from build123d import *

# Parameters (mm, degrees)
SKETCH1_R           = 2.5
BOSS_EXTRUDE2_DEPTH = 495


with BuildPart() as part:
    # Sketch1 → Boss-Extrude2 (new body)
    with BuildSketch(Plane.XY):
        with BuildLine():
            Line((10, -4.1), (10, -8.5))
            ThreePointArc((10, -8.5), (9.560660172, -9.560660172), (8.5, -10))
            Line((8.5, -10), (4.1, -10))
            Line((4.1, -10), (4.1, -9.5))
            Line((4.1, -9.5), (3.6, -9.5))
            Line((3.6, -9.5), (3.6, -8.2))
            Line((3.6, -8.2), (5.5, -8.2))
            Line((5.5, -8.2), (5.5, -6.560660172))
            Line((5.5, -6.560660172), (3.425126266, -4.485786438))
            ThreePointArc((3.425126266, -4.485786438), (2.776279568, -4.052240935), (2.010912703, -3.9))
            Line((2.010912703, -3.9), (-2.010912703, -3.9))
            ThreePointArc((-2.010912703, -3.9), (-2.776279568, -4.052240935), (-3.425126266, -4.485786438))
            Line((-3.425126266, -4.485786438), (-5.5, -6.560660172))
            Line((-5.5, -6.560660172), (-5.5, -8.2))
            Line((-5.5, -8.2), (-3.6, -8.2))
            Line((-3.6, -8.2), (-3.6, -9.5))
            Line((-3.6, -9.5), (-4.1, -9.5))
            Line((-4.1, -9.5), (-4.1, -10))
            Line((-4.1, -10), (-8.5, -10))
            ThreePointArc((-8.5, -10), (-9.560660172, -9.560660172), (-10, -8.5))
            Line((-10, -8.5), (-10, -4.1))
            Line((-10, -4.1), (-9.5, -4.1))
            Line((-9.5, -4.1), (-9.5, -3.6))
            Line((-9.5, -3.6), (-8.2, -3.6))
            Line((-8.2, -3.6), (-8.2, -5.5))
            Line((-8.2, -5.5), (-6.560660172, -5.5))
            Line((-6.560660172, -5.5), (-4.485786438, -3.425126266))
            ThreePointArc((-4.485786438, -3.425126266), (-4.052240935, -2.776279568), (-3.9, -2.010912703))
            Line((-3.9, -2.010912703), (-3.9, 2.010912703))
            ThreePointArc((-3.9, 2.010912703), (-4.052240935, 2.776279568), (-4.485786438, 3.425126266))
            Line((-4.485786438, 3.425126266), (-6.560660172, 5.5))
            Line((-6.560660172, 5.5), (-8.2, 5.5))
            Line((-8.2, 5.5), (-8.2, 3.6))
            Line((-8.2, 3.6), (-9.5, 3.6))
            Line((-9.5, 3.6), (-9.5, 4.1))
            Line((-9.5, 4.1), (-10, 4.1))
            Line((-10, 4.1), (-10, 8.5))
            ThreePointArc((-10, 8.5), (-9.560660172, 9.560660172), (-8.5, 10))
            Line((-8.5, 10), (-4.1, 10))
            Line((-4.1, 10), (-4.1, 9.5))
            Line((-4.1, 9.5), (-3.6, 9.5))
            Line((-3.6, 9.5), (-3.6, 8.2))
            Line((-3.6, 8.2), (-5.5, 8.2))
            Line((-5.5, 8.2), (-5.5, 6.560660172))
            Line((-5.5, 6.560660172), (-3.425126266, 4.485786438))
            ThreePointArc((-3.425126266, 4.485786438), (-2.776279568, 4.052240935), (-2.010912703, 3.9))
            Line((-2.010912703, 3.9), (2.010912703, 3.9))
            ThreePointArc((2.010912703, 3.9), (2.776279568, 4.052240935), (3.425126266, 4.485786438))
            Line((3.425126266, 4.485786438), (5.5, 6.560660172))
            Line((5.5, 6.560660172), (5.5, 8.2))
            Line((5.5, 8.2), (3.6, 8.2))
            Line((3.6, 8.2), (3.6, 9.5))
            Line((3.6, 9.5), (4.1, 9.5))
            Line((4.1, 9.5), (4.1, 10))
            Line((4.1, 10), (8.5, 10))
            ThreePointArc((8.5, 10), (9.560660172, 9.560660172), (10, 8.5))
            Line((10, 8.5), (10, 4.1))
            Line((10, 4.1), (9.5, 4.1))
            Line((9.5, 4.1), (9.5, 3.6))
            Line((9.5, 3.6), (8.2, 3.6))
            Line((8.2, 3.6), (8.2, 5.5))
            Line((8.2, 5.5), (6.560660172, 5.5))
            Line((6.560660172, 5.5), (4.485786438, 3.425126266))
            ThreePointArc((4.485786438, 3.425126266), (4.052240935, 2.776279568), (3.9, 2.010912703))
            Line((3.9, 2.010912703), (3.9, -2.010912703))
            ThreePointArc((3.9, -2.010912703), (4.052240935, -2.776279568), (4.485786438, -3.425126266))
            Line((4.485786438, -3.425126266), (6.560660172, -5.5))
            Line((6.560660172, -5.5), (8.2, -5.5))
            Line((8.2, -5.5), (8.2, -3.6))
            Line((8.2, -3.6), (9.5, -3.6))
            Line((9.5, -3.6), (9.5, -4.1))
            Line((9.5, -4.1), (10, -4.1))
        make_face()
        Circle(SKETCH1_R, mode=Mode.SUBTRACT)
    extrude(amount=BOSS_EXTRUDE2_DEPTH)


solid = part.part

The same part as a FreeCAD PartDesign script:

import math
import FreeCAD as App
import Part
import Sketcher
Q = App.Units.Quantity

doc = App.newDocument("Part")
body = doc.addObject("PartDesign::Body", "Body")

# Sketch on XY plane
sketch1 = body.newObject("Sketcher::SketchObject", "Sketch")
sketch1.AttachmentSupport = (doc.getObject("XY_Plane"), [""])
sketch1.MapMode = "FlatFace"
sketch1.addGeometry([
    Part.LineSegment(App.Vector(10, -8.5, 0), App.Vector(10, -4.1, 0)),  # 0
    Part.LineSegment(App.Vector(10, -4.1, 0), App.Vector(9.5, -4.1, 0)),  # 1
    Part.LineSegment(App.Vector(9.5, -4.1, 0), App.Vector(9.5, -3.6, 0)),  # 2
    Part.LineSegment(App.Vector(9.5, -3.6, 0), App.Vector(8.2, -3.6, 0)),  # 3
    Part.LineSegment(App.Vector(8.2, -3.6, 0), App.Vector(8.2, -5.5, 0)),  # 4
    Part.LineSegment(App.Vector(8.2, -5.5, 0), App.Vector(6.56066, -5.5, 0)),  # 5
    Part.LineSegment(App.Vector(6.56066, -5.5, 0), App.Vector(4.485786, -3.425126, 0)),  # 6
    Part.ArcOfCircle(Part.Circle(App.Vector(5.9, -2.010913, 0), App.Vector(0, 0, 1), 2), math.radians(180), math.radians(225)),  # 7
    Part.LineSegment(App.Vector(3.9, -2.010913, 0), App.Vector(3.9, 2.010913, 0)),  # 8
    Part.ArcOfCircle(Part.Circle(App.Vector(5.9, 2.010913, 0), App.Vector(0, 0, 1), 2), math.radians(135), math.radians(180)),  # 9
    Part.LineSegment(App.Vector(4.485786, 3.425126, 0), App.Vector(6.56066, 5.5, 0)),  # 10
    Part.LineSegment(App.Vector(6.56066, 5.5, 0), App.Vector(8.2, 5.5, 0)),  # 11
    Part.LineSegment(App.Vector(8.2, 5.5, 0), App.Vector(8.2, 3.6, 0)),  # 12
    Part.LineSegment(App.Vector(8.2, 3.6, 0), App.Vector(9.5, 3.6, 0)),  # 13
    Part.LineSegment(App.Vector(9.5, 3.6, 0), App.Vector(9.5, 4.1, 0)),  # 14
    Part.LineSegment(App.Vector(9.5, 4.1, 0), App.Vector(10, 4.1, 0)),  # 15
    Part.LineSegment(App.Vector(10, 4.1, 0), App.Vector(10, 8.5, 0)),  # 16
    Part.ArcOfCircle(Part.Circle(App.Vector(8.5, 8.5, 0), App.Vector(0, 0, 1), 1.5), math.radians(0), math.radians(90)),  # 17
    Part.LineSegment(App.Vector(8.5, 10, 0), App.Vector(4.1, 10, 0)),  # 18
    Part.LineSegment(App.Vector(4.1, 10, 0), App.Vector(4.1, 9.5, 0)),  # 19
    Part.LineSegment(App.Vector(4.1, 9.5, 0), App.Vector(3.6, 9.5, 0)),  # 20
    Part.LineSegment(App.Vector(3.6, 9.5, 0), App.Vector(3.6, 8.2, 0)),  # 21
    Part.LineSegment(App.Vector(3.6, 8.2, 0), App.Vector(5.5, 8.2, 0)),  # 22
    Part.LineSegment(App.Vector(5.5, 8.2, 0), App.Vector(5.5, 6.56066, 0)),  # 23
    Part.LineSegment(App.Vector(5.5, 6.56066, 0), App.Vector(3.425126, 4.485786, 0)),  # 24
    Part.ArcOfCircle(Part.Circle(App.Vector(2.010913, 5.9, 0), App.Vector(0, 0, 1), 2), math.radians(-90), math.radians(-45)),  # 25
    Part.LineSegment(App.Vector(2.010913, 3.9, 0), App.Vector(-2.010913, 3.9, 0)),  # 26
    Part.ArcOfCircle(Part.Circle(App.Vector(-2.010913, 5.9, 0), App.Vector(0, 0, 1), 2), math.radians(-135), math.radians(-90)),  # 27
    Part.LineSegment(App.Vector(-3.425126, 4.485786, 0), App.Vector(-5.5, 6.56066, 0)),  # 28
    Part.LineSegment(App.Vector(-5.5, 6.56066, 0), App.Vector(-5.5, 8.2, 0)),  # 29
    Part.LineSegment(App.Vector(-5.5, 8.2, 0), App.Vector(-3.6, 8.2, 0)),  # 30
    Part.LineSegment(App.Vector(-3.6, 8.2, 0), App.Vector(-3.6, 9.5, 0)),  # 31
    Part.LineSegment(App.Vector(-3.6, 9.5, 0), App.Vector(-4.1, 9.5, 0)),  # 32
    Part.LineSegment(App.Vector(-4.1, 9.5, 0), App.Vector(-4.1, 10, 0)),  # 33
    Part.LineSegment(App.Vector(-4.1, 10, 0), App.Vector(-8.5, 10, 0)),  # 34
    Part.ArcOfCircle(Part.Circle(App.Vector(-8.5, 8.5, 0), App.Vector(0, 0, 1), 1.5), math.radians(90), math.radians(180)),  # 35
    Part.LineSegment(App.Vector(-10, 8.5, 0), App.Vector(-10, 4.1, 0)),  # 36
    Part.LineSegment(App.Vector(-10, 4.1, 0), App.Vector(-9.5, 4.1, 0)),  # 37
    Part.LineSegment(App.Vector(-9.5, 4.1, 0), App.Vector(-9.5, 3.6, 0)),  # 38
    Part.LineSegment(App.Vector(-9.5, 3.6, 0), App.Vector(-8.2, 3.6, 0)),  # 39
    Part.LineSegment(App.Vector(-8.2, 3.6, 0), App.Vector(-8.2, 5.5, 0)),  # 40
    Part.LineSegment(App.Vector(-8.2, 5.5, 0), App.Vector(-6.56066, 5.5, 0)),  # 41
    Part.LineSegment(App.Vector(-6.56066, 5.5, 0), App.Vector(-4.485786, 3.425126, 0)),  # 42
    Part.ArcOfCircle(Part.Circle(App.Vector(-5.9, 2.010913, 0), App.Vector(0, 0, 1), 2), math.radians(0), math.radians(45)),  # 43
    Part.LineSegment(App.Vector(-3.9, 2.010913, 0), App.Vector(-3.9, -2.010913, 0)),  # 44
    Part.ArcOfCircle(Part.Circle(App.Vector(-5.9, -2.010913, 0), App.Vector(0, 0, 1), 2), math.radians(-45), math.radians(0)),  # 45
    Part.LineSegment(App.Vector(-4.485786, -3.425126, 0), App.Vector(-6.56066, -5.5, 0)),  # 46
    Part.LineSegment(App.Vector(-6.56066, -5.5, 0), App.Vector(-8.2, -5.5, 0)),  # 47
    Part.LineSegment(App.Vector(-8.2, -5.5, 0), App.Vector(-8.2, -3.6, 0)),  # 48
    Part.LineSegment(App.Vector(-8.2, -3.6, 0), App.Vector(-9.5, -3.6, 0)),  # 49
    Part.LineSegment(App.Vector(-9.5, -3.6, 0), App.Vector(-9.5, -4.1, 0)),  # 50
    Part.LineSegment(App.Vector(-9.5, -4.1, 0), App.Vector(-10, -4.1, 0)),  # 51
    Part.LineSegment(App.Vector(-10, -4.1, 0), App.Vector(-10, -8.5, 0)),  # 52
    Part.ArcOfCircle(Part.Circle(App.Vector(-8.5, -8.5, 0), App.Vector(0, 0, 1), 1.5), math.radians(180), math.radians(270)),  # 53
    Part.LineSegment(App.Vector(-8.5, -10, 0), App.Vector(-4.1, -10, 0)),  # 54
    Part.LineSegment(App.Vector(-4.1, -10, 0), App.Vector(-4.1, -9.5, 0)),  # 55
    Part.LineSegment(App.Vector(-4.1, -9.5, 0), App.Vector(-3.6, -9.5, 0)),  # 56
    Part.LineSegment(App.Vector(-3.6, -9.5, 0), App.Vector(-3.6, -8.2, 0)),  # 57
    Part.LineSegment(App.Vector(-3.6, -8.2, 0), App.Vector(-5.5, -8.2, 0)),  # 58
    Part.LineSegment(App.Vector(-5.5, -8.2, 0), App.Vector(-5.5, -6.56066, 0)),  # 59
    Part.LineSegment(App.Vector(-5.5, -6.56066, 0), App.Vector(-3.425126, -4.485786, 0)),  # 60
    Part.ArcOfCircle(Part.Circle(App.Vector(-2.010913, -5.9, 0), App.Vector(0, 0, 1), 2), math.radians(90), math.radians(135)),  # 61
    Part.LineSegment(App.Vector(-2.010913, -3.9, 0), App.Vector(2.010913, -3.9, 0)),  # 62
    Part.ArcOfCircle(Part.Circle(App.Vector(2.010913, -5.9, 0), App.Vector(0, 0, 1), 2), math.radians(45), math.radians(90)),  # 63
    Part.LineSegment(App.Vector(3.425126, -4.485786, 0), App.Vector(5.5, -6.56066, 0)),  # 64
    Part.LineSegment(App.Vector(5.5, -6.56066, 0), App.Vector(5.5, -8.2, 0)),  # 65
    Part.LineSegment(App.Vector(5.5, -8.2, 0), App.Vector(3.6, -8.2, 0)),  # 66
    Part.LineSegment(App.Vector(3.6, -8.2, 0), App.Vector(3.6, -9.5, 0)),  # 67
    Part.LineSegment(App.Vector(3.6, -9.5, 0), App.Vector(4.1, -9.5, 0)),  # 68
    Part.LineSegment(App.Vector(4.1, -9.5, 0), App.Vector(4.1, -10, 0)),  # 69
    Part.LineSegment(App.Vector(4.1, -10, 0), App.Vector(8.5, -10, 0)),  # 70
    Part.ArcOfCircle(Part.Circle(App.Vector(8.5, -8.5, 0), App.Vector(0, 0, 1), 1.5), math.radians(-90), math.radians(0)),  # 71
    Part.Circle(App.Vector(0, 0, 0), App.Vector(0, 0, 1), 2.5),  # 72
], False)
sketch1.addConstraint([
    Sketcher.Constraint("Coincident", 0, 2, 1, 1),
    Sketcher.Constraint("Coincident", 1, 2, 2, 1),
    Sketcher.Constraint("Coincident", 2, 2, 3, 1),
    Sketcher.Constraint("Coincident", 3, 2, 4, 1),
    Sketcher.Constraint("Coincident", 4, 2, 5, 1),
    Sketcher.Constraint("Coincident", 5, 2, 6, 1),
    Sketcher.Constraint("Tangent", 6, 2, 7, 2),
    Sketcher.Constraint("Tangent", 7, 1, 8, 1),
    Sketcher.Constraint("Tangent", 8, 2, 9, 2),
    Sketcher.Constraint("Tangent", 9, 1, 10, 1),
    Sketcher.Constraint("Coincident", 10, 2, 11, 1),
    Sketcher.Constraint("Coincident", 11, 2, 12, 1),
    Sketcher.Constraint("Coincident", 12, 2, 13, 1),
    Sketcher.Constraint("Coincident", 13, 2, 14, 1),
    Sketcher.Constraint("Coincident", 14, 2, 15, 1),
    Sketcher.Constraint("Coincident", 15, 2, 16, 1),
    Sketcher.Constraint("Tangent", 16, 2, 17, 1),
    Sketcher.Constraint("Tangent", 17, 2, 18, 1),
    Sketcher.Constraint("Coincident", 18, 2, 19, 1),
    Sketcher.Constraint("Coincident", 19, 2, 20, 1),
    Sketcher.Constraint("Coincident", 20, 2, 21, 1),
    Sketcher.Constraint("Coincident", 21, 2, 22, 1),
    Sketcher.Constraint("Coincident", 22, 2, 23, 1),
    Sketcher.Constraint("Coincident", 23, 2, 24, 1),
    Sketcher.Constraint("Tangent", 24, 2, 25, 2),
    Sketcher.Constraint("Tangent", 25, 1, 26, 1),
    Sketcher.Constraint("Tangent", 26, 2, 27, 2),
    Sketcher.Constraint("Tangent", 27, 1, 28, 1),
    Sketcher.Constraint("Coincident", 28, 2, 29, 1),
    Sketcher.Constraint("Coincident", 29, 2, 30, 1),
    Sketcher.Constraint("Coincident", 30, 2, 31, 1),
    Sketcher.Constraint("Coincident", 31, 2, 32, 1),
    Sketcher.Constraint("Coincident", 32, 2, 33, 1),
    Sketcher.Constraint("Coincident", 33, 2, 34, 1),
    Sketcher.Constraint("Tangent", 34, 2, 35, 1),
    Sketcher.Constraint("Tangent", 35, 2, 36, 1),
    Sketcher.Constraint("Coincident", 36, 2, 37, 1),
    Sketcher.Constraint("Coincident", 37, 2, 38, 1),
    Sketcher.Constraint("Coincident", 38, 2, 39, 1),
    Sketcher.Constraint("Coincident", 39, 2, 40, 1),
    Sketcher.Constraint("Coincident", 40, 2, 41, 1),
    Sketcher.Constraint("Coincident", 41, 2, 42, 1),
    Sketcher.Constraint("Tangent", 42, 2, 43, 2),
    Sketcher.Constraint("Tangent", 43, 1, 44, 1),
    Sketcher.Constraint("Tangent", 44, 2, 45, 2),
    Sketcher.Constraint("Tangent", 45, 1, 46, 1),
    Sketcher.Constraint("Coincident", 46, 2, 47, 1),
    Sketcher.Constraint("Coincident", 47, 2, 48, 1),
    Sketcher.Constraint("Coincident", 48, 2, 49, 1),
    Sketcher.Constraint("Coincident", 49, 2, 50, 1),
    Sketcher.Constraint("Coincident", 50, 2, 51, 1),
    Sketcher.Constraint("Coincident", 51, 2, 52, 1),
    Sketcher.Constraint("Tangent", 52, 2, 53, 1),
    Sketcher.Constraint("Tangent", 53, 2, 54, 1),
    Sketcher.Constraint("Coincident", 54, 2, 55, 1),
    Sketcher.Constraint("Coincident", 55, 2, 56, 1),
    Sketcher.Constraint("Coincident", 56, 2, 57, 1),
    Sketcher.Constraint("Coincident", 57, 2, 58, 1),
    Sketcher.Constraint("Coincident", 58, 2, 59, 1),
    Sketcher.Constraint("Coincident", 59, 2, 60, 1),
    Sketcher.Constraint("Tangent", 60, 2, 61, 2),
    Sketcher.Constraint("Tangent", 61, 1, 62, 1),
    Sketcher.Constraint("Tangent", 62, 2, 63, 2),
    Sketcher.Constraint("Tangent", 63, 1, 64, 1),
    Sketcher.Constraint("Coincident", 64, 2, 65, 1),
    Sketcher.Constraint("Coincident", 65, 2, 66, 1),
    Sketcher.Constraint("Coincident", 66, 2, 67, 1),
    Sketcher.Constraint("Coincident", 67, 2, 68, 1),
    Sketcher.Constraint("Coincident", 68, 2, 69, 1),
    Sketcher.Constraint("Coincident", 69, 2, 70, 1),
    Sketcher.Constraint("Tangent", 70, 2, 71, 1),
    Sketcher.Constraint("Tangent", 71, 2, 0, 1),
    Sketcher.Constraint("Vertical", 0),
    Sketcher.Constraint("Horizontal", 1),
    Sketcher.Constraint("Vertical", 2),
    Sketcher.Constraint("Horizontal", 3),
    Sketcher.Constraint("Vertical", 4),
    Sketcher.Constraint("Horizontal", 5),
    Sketcher.Constraint("Vertical", 8),
    Sketcher.Constraint("Horizontal", 11),
    Sketcher.Constraint("Vertical", 12),
    Sketcher.Constraint("Horizontal", 13),
    Sketcher.Constraint("Vertical", 14),
    Sketcher.Constraint("Horizontal", 15),
    Sketcher.Constraint("Vertical", 16),
    Sketcher.Constraint("Horizontal", 18),
    Sketcher.Constraint("Vertical", 19),
    Sketcher.Constraint("Horizontal", 20),
    Sketcher.Constraint("Vertical", 21),
    Sketcher.Constraint("Horizontal", 22),
    Sketcher.Constraint("Vertical", 23),
    Sketcher.Constraint("Horizontal", 26),
    Sketcher.Constraint("Vertical", 29),
    Sketcher.Constraint("Horizontal", 30),
    Sketcher.Constraint("Vertical", 31),
    Sketcher.Constraint("Horizontal", 32),
    Sketcher.Constraint("Vertical", 33),
    Sketcher.Constraint("Horizontal", 34),
    Sketcher.Constraint("Vertical", 36),
    Sketcher.Constraint("Horizontal", 37),
    Sketcher.Constraint("Vertical", 38),
    Sketcher.Constraint("Horizontal", 39),
    Sketcher.Constraint("Vertical", 40),
    Sketcher.Constraint("Horizontal", 41),
    Sketcher.Constraint("Vertical", 44),
    Sketcher.Constraint("Horizontal", 47),
    Sketcher.Constraint("Vertical", 48),
    Sketcher.Constraint("Horizontal", 49),
    Sketcher.Constraint("Vertical", 50),
    Sketcher.Constraint("Horizontal", 51),
    Sketcher.Constraint("Vertical", 52),
    Sketcher.Constraint("Horizontal", 54),
    Sketcher.Constraint("Vertical", 55),
    Sketcher.Constraint("Horizontal", 56),
    Sketcher.Constraint("Vertical", 57),
    Sketcher.Constraint("Horizontal", 58),
    Sketcher.Constraint("Vertical", 59),
    Sketcher.Constraint("Horizontal", 62),
    Sketcher.Constraint("Vertical", 65),
    Sketcher.Constraint("Horizontal", 66),
    Sketcher.Constraint("Vertical", 67),
    Sketcher.Constraint("Horizontal", 68),
    Sketcher.Constraint("Vertical", 69),
    Sketcher.Constraint("Horizontal", 70),
    Sketcher.Constraint("Coincident", 72, 3, -1, 1),
    Sketcher.Constraint("Equal", 7, 9),
    Sketcher.Constraint("Equal", 9, 25),
    Sketcher.Constraint("Equal", 25, 27),
    Sketcher.Constraint("Equal", 17, 35),
    Sketcher.Constraint("Equal", 27, 43),
    Sketcher.Constraint("Equal", 43, 45),
    Sketcher.Constraint("Equal", 35, 53),
    Sketcher.Constraint("Equal", 45, 61),
    Sketcher.Constraint("Equal", 61, 63),
    Sketcher.Constraint("Equal", 53, 71),
    Sketcher.Constraint("Symmetric", 7, 3, 43, 3, -1, 1),
    Sketcher.Constraint("Symmetric", 17, 3, 53, 3, -1, 1),
    Sketcher.Constraint("Symmetric", 25, 3, 61, 3, -1, 1),
    Sketcher.Constraint("Symmetric", 35, 3, 71, 3, -1, 1),
    Sketcher.Constraint("Symmetric", 1, 2, 37, 2, -1, 1),
    Sketcher.Constraint("Symmetric", 3, 2, 39, 2, -1, 1),
    Sketcher.Constraint("Symmetric", 5, 2, 41, 2, -1, 1),
    Sketcher.Constraint("Symmetric", 9, 1, 45, 1, -1, 1),
    Sketcher.Constraint("Symmetric", 11, 2, 47, 2, -1, 1),
    Sketcher.Constraint("Symmetric", 13, 2, 49, 2, -1, 1),
    Sketcher.Constraint("Symmetric", 19, 2, 55, 2, -1, 1),
    Sketcher.Constraint("Symmetric", 21, 2, 57, 2, -1, 1),
    Sketcher.Constraint("Symmetric", 23, 2, 59, 2, -1, 1),
    Sketcher.Constraint("Symmetric", 27, 1, 63, 1, -1, 1),
    Sketcher.Constraint("Symmetric", 29, 2, 65, 2, -1, 1),
    Sketcher.Constraint("Symmetric", 31, 2, 67, 2, -1, 1),
    Sketcher.Constraint("Symmetric", 17, 3, 35, 3, -2),
    Sketcher.Constraint("Symmetric", 24, 2, 27, 1, -2),
    Sketcher.Constraint("Symmetric", 22, 2, 29, 2, -2),
    Sketcher.Constraint("Symmetric", 20, 2, 31, 2, -2),
    Sketcher.Constraint("Symmetric", 14, 2, 37, 2, -2),
    Sketcher.Constraint("Symmetric", 12, 2, 39, 2, -2),
    Sketcher.Constraint("Symmetric", 10, 2, 41, 2, -2),
    Sketcher.Constraint("Perpendicular", 6, 10),
    Sketcher.Constraint("Parallel", 10, 24),
    Sketcher.Constraint("Perpendicular", 24, 28),
    Sketcher.Constraint("Horizontal", 1, 2, 50, 2),
    Sketcher.Constraint("Vertical", 33, 2, 54, 2),
    Sketcher.Constraint("Vertical", 19, 2, 68, 2),
    Sketcher.Constraint("Equal", 15, 20),
    Sketcher.Constraint("Equal", 70, 0),
    Sketcher.Constraint("Equal", 68, 2),
    Sketcher.Constraint("Equal", 66, 4),
    Sketcher.Constraint("Equal", 62, 8),
    Sketcher.Constraint("Equal", 14, 19),
    Sketcher.Constraint("Equal", 49, 21),
    Sketcher.Constraint("Equal", 47, 23),
    Sketcher.Constraint("Equal", 10, 24),
    Sketcher.Constraint("Diameter", 72, Q("5 mm")),
    Sketcher.Constraint("Radius", 7, Q("2 mm")),
    Sketcher.Constraint("Radius", 17, Q("1.5 mm")),
    Sketcher.Constraint("DistanceX", 1, 2, 1, 1, Q("0.5 mm")),
    Sketcher.Constraint("DistanceX", 3, 2, 3, 1, Q("1.3 mm")),
    Sketcher.Constraint("DistanceX", 18, 2, 18, 1, Q("4.4 mm")),
    Sketcher.Constraint("DistanceX", 22, 1, 22, 2, Q("1.9 mm")),
    Sketcher.Constraint("DistanceX", -1, 1, 0, 2, Q("10 mm")),
    Sketcher.Constraint("DistanceX", -1, 1, 7, 3, Q("5.9 mm")),
    Sketcher.Constraint("DistanceX", 5, 2, 5, 1, Q("1.63934 mm")),
])
pad1 = body.newObject("PartDesign::Pad", "Pad")
pad1.Profile = sketch1
pad1.Length = 495

doc.recompute()
